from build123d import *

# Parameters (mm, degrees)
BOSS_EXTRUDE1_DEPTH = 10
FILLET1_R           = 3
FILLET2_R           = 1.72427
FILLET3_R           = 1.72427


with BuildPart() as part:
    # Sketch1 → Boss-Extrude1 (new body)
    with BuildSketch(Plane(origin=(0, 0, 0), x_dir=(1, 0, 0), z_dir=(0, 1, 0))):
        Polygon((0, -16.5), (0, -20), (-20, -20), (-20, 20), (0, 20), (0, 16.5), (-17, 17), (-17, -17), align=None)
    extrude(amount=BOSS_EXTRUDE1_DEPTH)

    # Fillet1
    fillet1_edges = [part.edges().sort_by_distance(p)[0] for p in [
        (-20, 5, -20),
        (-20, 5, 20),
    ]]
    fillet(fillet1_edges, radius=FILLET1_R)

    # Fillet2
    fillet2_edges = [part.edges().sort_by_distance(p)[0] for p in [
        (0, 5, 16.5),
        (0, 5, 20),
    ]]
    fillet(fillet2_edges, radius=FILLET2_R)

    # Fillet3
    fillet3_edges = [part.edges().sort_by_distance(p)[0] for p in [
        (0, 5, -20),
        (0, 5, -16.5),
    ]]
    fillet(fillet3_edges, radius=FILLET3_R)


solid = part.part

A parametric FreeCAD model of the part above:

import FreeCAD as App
import Part
import Sketcher

V = App.Vector


def edges_at(feature, points):
    """Names of the edges that pass closest to the given points."""
    edges = feature.Shape.Edges
    near = lambda p: min(range(len(edges)), key=lambda i: edges[i].distToShape(Part.Vertex(*p))[0])
    return sorted({f"Edge{near(p) + 1}" for p in points})


def add_polygon(sketch, points):
    """Adds a closed chain of lines whose ends are joined by coincident constraints."""
    first, n = sketch.GeometryCount, len(points)
    for a, b in zip(points, points[1:] + points[:1]):
        sketch.addGeometry(Part.LineSegment(App.Vector(*a, 0), App.Vector(*b, 0)), False)
    for i in range(n):
        sketch.addConstraint(Sketcher.Constraint("Coincident", first + i, 2, first + (i + 1) % n, 1))

doc = App.newDocument("Part")
body = doc.addObject("PartDesign::Body", "Body")

# Sketch on XZ plane
sketch1 = body.newObject("Sketcher::SketchObject", "Sketch")
sketch1.AttachmentSupport = (doc.getObject("XZ_Plane"), [""])
sketch1.MapMode = "FlatFace"
add_polygon(sketch1, [(0, 20), (0, 16.5), (-17, 17), (-17, -17), (0, -16.5), (0, -20), (-20, -20), (-20, 20)])  # lines 0-7
sketch1.addConstraint(Sketcher.Constraint("Vertical", 0))
sketch1.addConstraint(Sketcher.Constraint("Vertical", 2))
sketch1.addConstraint(Sketcher.Constraint("Vertical", 4))
sketch1.addConstraint(Sketcher.Constraint("Horizontal", 5))
sketch1.addConstraint(Sketcher.Constraint("Vertical", 6))
sketch1.addConstraint(Sketcher.Constraint("Horizontal", 7))
sketch1.addConstraint(Sketcher.Constraint("Symmetric", 0, 2, 3, 2, -1, 1))
sketch1.addConstraint(Sketcher.Constraint("Symmetric", 4, 2, 7, 2, -1))
sketch1.addConstraint(Sketcher.Constraint("Equal", 1, 3))
sketch1.addConstraint(Sketcher.Constraint("DistanceX", 5, 2, 5, 1, 20.0))
sketch1.addConstraint(Sketcher.Constraint("DistanceY", 2, 2, 2, 1, 34.0))
sketch1.addConstraint(Sketcher.Constraint("DistanceY", 6, 1, 6, 2, 40.0))
sketch1.addConstraint(Sketcher.Constraint("DistanceY", 0, 2, 0, 1, 3.5))
sketch1.addConstraint(Sketcher.Constraint("DistanceX", 1, 2, -1, 1, 17.0))
pad1 = body.newObject("PartDesign::Pad", "Pad")
pad1.Profile = sketch1
pad1.Length = 10
pad1.Reversed = True
doc.recompute()

fillet = body.newObject("PartDesign::Fillet", "Fillet")
fillet.Base = (pad1, edges_at(pad1, [(-20, 5, -20), (-20, 5, 20)]))
fillet.Radius = 3
doc.recompute()

fillet2 = body.newObject("PartDesign::Fillet", "Fillet001")
fillet2.Base = (fillet, edges_at(fillet, [(0, 5, 16.5), (0, 5, 20)]))
fillet2.Radius = 1.72427
doc.recompute()

fillet3 = body.newObject("PartDesign::Fillet", "Fillet002")
fillet3.Base = (fillet2, edges_at(fillet2, [(0, 5, -20), (0, 5, -16.5)]))
fillet3.Radius = 1.72427

doc.recompute()
